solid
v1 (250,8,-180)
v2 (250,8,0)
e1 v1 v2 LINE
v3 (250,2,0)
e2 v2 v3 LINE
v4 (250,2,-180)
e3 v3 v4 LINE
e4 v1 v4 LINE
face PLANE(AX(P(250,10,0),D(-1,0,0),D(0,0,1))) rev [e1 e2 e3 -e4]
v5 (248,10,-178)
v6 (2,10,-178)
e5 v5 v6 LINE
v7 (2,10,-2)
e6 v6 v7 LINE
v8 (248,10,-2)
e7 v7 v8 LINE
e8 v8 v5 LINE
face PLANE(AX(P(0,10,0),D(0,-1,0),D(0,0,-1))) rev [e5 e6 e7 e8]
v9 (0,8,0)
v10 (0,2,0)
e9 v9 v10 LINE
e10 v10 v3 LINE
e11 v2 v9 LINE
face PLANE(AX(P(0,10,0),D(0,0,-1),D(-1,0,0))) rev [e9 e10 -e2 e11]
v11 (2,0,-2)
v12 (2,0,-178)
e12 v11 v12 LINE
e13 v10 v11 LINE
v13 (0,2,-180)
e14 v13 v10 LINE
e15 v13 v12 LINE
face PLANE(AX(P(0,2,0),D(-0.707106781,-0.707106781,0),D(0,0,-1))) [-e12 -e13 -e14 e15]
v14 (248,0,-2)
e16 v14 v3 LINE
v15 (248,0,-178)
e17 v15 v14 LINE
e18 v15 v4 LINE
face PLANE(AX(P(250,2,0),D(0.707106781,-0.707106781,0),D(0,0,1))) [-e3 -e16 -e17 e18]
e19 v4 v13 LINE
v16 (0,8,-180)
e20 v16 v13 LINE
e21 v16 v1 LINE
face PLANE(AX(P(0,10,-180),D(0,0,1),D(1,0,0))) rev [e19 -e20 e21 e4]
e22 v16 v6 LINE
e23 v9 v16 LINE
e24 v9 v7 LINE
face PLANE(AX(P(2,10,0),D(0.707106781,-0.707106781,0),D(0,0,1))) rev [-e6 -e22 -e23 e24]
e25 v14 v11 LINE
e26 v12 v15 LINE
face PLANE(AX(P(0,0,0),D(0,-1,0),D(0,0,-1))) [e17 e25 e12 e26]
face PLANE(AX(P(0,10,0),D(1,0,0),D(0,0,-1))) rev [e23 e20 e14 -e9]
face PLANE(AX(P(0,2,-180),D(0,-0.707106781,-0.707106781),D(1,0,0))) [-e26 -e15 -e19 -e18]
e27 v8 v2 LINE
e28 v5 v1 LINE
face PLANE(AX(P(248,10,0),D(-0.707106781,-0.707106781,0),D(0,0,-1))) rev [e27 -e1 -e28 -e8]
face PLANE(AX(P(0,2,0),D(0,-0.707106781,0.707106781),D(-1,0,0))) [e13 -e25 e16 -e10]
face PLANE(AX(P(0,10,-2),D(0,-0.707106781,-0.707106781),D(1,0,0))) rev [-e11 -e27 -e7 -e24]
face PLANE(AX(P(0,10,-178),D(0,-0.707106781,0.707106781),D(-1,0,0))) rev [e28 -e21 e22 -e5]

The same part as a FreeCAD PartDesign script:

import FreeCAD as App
import Part
import Sketcher


def edges_at(feature, points):
    """Names of the edges that pass closest to the given points."""
    edges = feature.Shape.Edges
    near = lambda p: min(range(len(edges)), key=lambda i: edges[i].distToShape(Part.Vertex(*p))[0])
    return sorted({f"Edge{near(p) + 1}" for p in points})


def add_polygon(sketch, points):
    """Adds a closed chain of lines whose ends are joined by coincident constraints."""
    first, n = sketch.GeometryCount, len(points)
    for a, b in zip(points, points[1:] + points[:1]):
        sketch.addGeometry(Part.LineSegment(App.Vector(*a, 0), App.Vector(*b, 0)), False)
    for i in range(n):
        sketch.addConstraint(Sketcher.Constraint("Coincident", first + i, 2, first + (i + 1) % n, 1))

doc = App.newDocument("Part")
params = doc.addObject("Spreadsheet::Sheet", "Params")
for row, (alias, value) in enumerate([
    ("sketch1_width", "250 mm"),
    ("sketch1_height", "180 mm"),
    ("pad1_length", "10 mm"),
    ("chamfer_size", "2 mm"),
], start=1):
    params.set(f"A{row}", alias)
    params.set(f"B{row}", "=" + value)
    params.setAlias(f"B{row}", alias)

body = doc.addObject("PartDesign::Body", "Body")

# Sketch on XZ plane
sketch1 = body.newObject("Sketcher::SketchObject", "Sketch")
sketch1.AttachmentSupport = (doc.getObject("XZ_Plane"), [""])
sketch1.MapMode = "FlatFace"
add_polygon(sketch1, [(0, -180), (0, 0), (250, 0), (250, -180)])  # lines 0-3
sketch1.addConstraint(Sketcher.Constraint("Vertical", 0))
sketch1.addConstraint(Sketcher.Constraint("Horizontal", 1))
sketch1.addConstraint(Sketcher.Constraint("Vertical", 2))
sketch1.addConstraint(Sketcher.Constraint("Horizontal", 3))
sketch1.addConstraint(Sketcher.Constraint("Coincident", 0, 2, -1, 1))
sketch1.addConstraint(Sketcher.Constraint("DistanceX", 1, 1, 1, 2, 250.0))
sketch1.addConstraint(Sketcher.Constraint("DistanceY", 0, 1, 0, 2, 180.0))
sketch1.setExpression("Constraints[9]", "Params.sketch1_width")
sketch1.setExpression("Constraints[10]", "Params.sketch1_height")
pad1 = body.newObject("PartDesign::Pad", "Pad")
pad1.Profile = sketch1
pad1.setExpression("Length", "Params.pad1_length")
pad1.Reversed = True
doc.recompute()

chamfer = body.newObject("PartDesign::Chamfer", "Chamfer")
chamfer.Base = (pad1, edges_at(pad1, [
    (250, 10, -90),
    (125, 10, -180),
    (0, 10, -90),
    (125, 0, -180),
    (250, 0, -90),
    (125, 0, 0),
    (0, 0, -90),
    (125, 10, 0),
]))
chamfer.setExpression("Size", "Params.chamfer_size")

doc.recompute()
